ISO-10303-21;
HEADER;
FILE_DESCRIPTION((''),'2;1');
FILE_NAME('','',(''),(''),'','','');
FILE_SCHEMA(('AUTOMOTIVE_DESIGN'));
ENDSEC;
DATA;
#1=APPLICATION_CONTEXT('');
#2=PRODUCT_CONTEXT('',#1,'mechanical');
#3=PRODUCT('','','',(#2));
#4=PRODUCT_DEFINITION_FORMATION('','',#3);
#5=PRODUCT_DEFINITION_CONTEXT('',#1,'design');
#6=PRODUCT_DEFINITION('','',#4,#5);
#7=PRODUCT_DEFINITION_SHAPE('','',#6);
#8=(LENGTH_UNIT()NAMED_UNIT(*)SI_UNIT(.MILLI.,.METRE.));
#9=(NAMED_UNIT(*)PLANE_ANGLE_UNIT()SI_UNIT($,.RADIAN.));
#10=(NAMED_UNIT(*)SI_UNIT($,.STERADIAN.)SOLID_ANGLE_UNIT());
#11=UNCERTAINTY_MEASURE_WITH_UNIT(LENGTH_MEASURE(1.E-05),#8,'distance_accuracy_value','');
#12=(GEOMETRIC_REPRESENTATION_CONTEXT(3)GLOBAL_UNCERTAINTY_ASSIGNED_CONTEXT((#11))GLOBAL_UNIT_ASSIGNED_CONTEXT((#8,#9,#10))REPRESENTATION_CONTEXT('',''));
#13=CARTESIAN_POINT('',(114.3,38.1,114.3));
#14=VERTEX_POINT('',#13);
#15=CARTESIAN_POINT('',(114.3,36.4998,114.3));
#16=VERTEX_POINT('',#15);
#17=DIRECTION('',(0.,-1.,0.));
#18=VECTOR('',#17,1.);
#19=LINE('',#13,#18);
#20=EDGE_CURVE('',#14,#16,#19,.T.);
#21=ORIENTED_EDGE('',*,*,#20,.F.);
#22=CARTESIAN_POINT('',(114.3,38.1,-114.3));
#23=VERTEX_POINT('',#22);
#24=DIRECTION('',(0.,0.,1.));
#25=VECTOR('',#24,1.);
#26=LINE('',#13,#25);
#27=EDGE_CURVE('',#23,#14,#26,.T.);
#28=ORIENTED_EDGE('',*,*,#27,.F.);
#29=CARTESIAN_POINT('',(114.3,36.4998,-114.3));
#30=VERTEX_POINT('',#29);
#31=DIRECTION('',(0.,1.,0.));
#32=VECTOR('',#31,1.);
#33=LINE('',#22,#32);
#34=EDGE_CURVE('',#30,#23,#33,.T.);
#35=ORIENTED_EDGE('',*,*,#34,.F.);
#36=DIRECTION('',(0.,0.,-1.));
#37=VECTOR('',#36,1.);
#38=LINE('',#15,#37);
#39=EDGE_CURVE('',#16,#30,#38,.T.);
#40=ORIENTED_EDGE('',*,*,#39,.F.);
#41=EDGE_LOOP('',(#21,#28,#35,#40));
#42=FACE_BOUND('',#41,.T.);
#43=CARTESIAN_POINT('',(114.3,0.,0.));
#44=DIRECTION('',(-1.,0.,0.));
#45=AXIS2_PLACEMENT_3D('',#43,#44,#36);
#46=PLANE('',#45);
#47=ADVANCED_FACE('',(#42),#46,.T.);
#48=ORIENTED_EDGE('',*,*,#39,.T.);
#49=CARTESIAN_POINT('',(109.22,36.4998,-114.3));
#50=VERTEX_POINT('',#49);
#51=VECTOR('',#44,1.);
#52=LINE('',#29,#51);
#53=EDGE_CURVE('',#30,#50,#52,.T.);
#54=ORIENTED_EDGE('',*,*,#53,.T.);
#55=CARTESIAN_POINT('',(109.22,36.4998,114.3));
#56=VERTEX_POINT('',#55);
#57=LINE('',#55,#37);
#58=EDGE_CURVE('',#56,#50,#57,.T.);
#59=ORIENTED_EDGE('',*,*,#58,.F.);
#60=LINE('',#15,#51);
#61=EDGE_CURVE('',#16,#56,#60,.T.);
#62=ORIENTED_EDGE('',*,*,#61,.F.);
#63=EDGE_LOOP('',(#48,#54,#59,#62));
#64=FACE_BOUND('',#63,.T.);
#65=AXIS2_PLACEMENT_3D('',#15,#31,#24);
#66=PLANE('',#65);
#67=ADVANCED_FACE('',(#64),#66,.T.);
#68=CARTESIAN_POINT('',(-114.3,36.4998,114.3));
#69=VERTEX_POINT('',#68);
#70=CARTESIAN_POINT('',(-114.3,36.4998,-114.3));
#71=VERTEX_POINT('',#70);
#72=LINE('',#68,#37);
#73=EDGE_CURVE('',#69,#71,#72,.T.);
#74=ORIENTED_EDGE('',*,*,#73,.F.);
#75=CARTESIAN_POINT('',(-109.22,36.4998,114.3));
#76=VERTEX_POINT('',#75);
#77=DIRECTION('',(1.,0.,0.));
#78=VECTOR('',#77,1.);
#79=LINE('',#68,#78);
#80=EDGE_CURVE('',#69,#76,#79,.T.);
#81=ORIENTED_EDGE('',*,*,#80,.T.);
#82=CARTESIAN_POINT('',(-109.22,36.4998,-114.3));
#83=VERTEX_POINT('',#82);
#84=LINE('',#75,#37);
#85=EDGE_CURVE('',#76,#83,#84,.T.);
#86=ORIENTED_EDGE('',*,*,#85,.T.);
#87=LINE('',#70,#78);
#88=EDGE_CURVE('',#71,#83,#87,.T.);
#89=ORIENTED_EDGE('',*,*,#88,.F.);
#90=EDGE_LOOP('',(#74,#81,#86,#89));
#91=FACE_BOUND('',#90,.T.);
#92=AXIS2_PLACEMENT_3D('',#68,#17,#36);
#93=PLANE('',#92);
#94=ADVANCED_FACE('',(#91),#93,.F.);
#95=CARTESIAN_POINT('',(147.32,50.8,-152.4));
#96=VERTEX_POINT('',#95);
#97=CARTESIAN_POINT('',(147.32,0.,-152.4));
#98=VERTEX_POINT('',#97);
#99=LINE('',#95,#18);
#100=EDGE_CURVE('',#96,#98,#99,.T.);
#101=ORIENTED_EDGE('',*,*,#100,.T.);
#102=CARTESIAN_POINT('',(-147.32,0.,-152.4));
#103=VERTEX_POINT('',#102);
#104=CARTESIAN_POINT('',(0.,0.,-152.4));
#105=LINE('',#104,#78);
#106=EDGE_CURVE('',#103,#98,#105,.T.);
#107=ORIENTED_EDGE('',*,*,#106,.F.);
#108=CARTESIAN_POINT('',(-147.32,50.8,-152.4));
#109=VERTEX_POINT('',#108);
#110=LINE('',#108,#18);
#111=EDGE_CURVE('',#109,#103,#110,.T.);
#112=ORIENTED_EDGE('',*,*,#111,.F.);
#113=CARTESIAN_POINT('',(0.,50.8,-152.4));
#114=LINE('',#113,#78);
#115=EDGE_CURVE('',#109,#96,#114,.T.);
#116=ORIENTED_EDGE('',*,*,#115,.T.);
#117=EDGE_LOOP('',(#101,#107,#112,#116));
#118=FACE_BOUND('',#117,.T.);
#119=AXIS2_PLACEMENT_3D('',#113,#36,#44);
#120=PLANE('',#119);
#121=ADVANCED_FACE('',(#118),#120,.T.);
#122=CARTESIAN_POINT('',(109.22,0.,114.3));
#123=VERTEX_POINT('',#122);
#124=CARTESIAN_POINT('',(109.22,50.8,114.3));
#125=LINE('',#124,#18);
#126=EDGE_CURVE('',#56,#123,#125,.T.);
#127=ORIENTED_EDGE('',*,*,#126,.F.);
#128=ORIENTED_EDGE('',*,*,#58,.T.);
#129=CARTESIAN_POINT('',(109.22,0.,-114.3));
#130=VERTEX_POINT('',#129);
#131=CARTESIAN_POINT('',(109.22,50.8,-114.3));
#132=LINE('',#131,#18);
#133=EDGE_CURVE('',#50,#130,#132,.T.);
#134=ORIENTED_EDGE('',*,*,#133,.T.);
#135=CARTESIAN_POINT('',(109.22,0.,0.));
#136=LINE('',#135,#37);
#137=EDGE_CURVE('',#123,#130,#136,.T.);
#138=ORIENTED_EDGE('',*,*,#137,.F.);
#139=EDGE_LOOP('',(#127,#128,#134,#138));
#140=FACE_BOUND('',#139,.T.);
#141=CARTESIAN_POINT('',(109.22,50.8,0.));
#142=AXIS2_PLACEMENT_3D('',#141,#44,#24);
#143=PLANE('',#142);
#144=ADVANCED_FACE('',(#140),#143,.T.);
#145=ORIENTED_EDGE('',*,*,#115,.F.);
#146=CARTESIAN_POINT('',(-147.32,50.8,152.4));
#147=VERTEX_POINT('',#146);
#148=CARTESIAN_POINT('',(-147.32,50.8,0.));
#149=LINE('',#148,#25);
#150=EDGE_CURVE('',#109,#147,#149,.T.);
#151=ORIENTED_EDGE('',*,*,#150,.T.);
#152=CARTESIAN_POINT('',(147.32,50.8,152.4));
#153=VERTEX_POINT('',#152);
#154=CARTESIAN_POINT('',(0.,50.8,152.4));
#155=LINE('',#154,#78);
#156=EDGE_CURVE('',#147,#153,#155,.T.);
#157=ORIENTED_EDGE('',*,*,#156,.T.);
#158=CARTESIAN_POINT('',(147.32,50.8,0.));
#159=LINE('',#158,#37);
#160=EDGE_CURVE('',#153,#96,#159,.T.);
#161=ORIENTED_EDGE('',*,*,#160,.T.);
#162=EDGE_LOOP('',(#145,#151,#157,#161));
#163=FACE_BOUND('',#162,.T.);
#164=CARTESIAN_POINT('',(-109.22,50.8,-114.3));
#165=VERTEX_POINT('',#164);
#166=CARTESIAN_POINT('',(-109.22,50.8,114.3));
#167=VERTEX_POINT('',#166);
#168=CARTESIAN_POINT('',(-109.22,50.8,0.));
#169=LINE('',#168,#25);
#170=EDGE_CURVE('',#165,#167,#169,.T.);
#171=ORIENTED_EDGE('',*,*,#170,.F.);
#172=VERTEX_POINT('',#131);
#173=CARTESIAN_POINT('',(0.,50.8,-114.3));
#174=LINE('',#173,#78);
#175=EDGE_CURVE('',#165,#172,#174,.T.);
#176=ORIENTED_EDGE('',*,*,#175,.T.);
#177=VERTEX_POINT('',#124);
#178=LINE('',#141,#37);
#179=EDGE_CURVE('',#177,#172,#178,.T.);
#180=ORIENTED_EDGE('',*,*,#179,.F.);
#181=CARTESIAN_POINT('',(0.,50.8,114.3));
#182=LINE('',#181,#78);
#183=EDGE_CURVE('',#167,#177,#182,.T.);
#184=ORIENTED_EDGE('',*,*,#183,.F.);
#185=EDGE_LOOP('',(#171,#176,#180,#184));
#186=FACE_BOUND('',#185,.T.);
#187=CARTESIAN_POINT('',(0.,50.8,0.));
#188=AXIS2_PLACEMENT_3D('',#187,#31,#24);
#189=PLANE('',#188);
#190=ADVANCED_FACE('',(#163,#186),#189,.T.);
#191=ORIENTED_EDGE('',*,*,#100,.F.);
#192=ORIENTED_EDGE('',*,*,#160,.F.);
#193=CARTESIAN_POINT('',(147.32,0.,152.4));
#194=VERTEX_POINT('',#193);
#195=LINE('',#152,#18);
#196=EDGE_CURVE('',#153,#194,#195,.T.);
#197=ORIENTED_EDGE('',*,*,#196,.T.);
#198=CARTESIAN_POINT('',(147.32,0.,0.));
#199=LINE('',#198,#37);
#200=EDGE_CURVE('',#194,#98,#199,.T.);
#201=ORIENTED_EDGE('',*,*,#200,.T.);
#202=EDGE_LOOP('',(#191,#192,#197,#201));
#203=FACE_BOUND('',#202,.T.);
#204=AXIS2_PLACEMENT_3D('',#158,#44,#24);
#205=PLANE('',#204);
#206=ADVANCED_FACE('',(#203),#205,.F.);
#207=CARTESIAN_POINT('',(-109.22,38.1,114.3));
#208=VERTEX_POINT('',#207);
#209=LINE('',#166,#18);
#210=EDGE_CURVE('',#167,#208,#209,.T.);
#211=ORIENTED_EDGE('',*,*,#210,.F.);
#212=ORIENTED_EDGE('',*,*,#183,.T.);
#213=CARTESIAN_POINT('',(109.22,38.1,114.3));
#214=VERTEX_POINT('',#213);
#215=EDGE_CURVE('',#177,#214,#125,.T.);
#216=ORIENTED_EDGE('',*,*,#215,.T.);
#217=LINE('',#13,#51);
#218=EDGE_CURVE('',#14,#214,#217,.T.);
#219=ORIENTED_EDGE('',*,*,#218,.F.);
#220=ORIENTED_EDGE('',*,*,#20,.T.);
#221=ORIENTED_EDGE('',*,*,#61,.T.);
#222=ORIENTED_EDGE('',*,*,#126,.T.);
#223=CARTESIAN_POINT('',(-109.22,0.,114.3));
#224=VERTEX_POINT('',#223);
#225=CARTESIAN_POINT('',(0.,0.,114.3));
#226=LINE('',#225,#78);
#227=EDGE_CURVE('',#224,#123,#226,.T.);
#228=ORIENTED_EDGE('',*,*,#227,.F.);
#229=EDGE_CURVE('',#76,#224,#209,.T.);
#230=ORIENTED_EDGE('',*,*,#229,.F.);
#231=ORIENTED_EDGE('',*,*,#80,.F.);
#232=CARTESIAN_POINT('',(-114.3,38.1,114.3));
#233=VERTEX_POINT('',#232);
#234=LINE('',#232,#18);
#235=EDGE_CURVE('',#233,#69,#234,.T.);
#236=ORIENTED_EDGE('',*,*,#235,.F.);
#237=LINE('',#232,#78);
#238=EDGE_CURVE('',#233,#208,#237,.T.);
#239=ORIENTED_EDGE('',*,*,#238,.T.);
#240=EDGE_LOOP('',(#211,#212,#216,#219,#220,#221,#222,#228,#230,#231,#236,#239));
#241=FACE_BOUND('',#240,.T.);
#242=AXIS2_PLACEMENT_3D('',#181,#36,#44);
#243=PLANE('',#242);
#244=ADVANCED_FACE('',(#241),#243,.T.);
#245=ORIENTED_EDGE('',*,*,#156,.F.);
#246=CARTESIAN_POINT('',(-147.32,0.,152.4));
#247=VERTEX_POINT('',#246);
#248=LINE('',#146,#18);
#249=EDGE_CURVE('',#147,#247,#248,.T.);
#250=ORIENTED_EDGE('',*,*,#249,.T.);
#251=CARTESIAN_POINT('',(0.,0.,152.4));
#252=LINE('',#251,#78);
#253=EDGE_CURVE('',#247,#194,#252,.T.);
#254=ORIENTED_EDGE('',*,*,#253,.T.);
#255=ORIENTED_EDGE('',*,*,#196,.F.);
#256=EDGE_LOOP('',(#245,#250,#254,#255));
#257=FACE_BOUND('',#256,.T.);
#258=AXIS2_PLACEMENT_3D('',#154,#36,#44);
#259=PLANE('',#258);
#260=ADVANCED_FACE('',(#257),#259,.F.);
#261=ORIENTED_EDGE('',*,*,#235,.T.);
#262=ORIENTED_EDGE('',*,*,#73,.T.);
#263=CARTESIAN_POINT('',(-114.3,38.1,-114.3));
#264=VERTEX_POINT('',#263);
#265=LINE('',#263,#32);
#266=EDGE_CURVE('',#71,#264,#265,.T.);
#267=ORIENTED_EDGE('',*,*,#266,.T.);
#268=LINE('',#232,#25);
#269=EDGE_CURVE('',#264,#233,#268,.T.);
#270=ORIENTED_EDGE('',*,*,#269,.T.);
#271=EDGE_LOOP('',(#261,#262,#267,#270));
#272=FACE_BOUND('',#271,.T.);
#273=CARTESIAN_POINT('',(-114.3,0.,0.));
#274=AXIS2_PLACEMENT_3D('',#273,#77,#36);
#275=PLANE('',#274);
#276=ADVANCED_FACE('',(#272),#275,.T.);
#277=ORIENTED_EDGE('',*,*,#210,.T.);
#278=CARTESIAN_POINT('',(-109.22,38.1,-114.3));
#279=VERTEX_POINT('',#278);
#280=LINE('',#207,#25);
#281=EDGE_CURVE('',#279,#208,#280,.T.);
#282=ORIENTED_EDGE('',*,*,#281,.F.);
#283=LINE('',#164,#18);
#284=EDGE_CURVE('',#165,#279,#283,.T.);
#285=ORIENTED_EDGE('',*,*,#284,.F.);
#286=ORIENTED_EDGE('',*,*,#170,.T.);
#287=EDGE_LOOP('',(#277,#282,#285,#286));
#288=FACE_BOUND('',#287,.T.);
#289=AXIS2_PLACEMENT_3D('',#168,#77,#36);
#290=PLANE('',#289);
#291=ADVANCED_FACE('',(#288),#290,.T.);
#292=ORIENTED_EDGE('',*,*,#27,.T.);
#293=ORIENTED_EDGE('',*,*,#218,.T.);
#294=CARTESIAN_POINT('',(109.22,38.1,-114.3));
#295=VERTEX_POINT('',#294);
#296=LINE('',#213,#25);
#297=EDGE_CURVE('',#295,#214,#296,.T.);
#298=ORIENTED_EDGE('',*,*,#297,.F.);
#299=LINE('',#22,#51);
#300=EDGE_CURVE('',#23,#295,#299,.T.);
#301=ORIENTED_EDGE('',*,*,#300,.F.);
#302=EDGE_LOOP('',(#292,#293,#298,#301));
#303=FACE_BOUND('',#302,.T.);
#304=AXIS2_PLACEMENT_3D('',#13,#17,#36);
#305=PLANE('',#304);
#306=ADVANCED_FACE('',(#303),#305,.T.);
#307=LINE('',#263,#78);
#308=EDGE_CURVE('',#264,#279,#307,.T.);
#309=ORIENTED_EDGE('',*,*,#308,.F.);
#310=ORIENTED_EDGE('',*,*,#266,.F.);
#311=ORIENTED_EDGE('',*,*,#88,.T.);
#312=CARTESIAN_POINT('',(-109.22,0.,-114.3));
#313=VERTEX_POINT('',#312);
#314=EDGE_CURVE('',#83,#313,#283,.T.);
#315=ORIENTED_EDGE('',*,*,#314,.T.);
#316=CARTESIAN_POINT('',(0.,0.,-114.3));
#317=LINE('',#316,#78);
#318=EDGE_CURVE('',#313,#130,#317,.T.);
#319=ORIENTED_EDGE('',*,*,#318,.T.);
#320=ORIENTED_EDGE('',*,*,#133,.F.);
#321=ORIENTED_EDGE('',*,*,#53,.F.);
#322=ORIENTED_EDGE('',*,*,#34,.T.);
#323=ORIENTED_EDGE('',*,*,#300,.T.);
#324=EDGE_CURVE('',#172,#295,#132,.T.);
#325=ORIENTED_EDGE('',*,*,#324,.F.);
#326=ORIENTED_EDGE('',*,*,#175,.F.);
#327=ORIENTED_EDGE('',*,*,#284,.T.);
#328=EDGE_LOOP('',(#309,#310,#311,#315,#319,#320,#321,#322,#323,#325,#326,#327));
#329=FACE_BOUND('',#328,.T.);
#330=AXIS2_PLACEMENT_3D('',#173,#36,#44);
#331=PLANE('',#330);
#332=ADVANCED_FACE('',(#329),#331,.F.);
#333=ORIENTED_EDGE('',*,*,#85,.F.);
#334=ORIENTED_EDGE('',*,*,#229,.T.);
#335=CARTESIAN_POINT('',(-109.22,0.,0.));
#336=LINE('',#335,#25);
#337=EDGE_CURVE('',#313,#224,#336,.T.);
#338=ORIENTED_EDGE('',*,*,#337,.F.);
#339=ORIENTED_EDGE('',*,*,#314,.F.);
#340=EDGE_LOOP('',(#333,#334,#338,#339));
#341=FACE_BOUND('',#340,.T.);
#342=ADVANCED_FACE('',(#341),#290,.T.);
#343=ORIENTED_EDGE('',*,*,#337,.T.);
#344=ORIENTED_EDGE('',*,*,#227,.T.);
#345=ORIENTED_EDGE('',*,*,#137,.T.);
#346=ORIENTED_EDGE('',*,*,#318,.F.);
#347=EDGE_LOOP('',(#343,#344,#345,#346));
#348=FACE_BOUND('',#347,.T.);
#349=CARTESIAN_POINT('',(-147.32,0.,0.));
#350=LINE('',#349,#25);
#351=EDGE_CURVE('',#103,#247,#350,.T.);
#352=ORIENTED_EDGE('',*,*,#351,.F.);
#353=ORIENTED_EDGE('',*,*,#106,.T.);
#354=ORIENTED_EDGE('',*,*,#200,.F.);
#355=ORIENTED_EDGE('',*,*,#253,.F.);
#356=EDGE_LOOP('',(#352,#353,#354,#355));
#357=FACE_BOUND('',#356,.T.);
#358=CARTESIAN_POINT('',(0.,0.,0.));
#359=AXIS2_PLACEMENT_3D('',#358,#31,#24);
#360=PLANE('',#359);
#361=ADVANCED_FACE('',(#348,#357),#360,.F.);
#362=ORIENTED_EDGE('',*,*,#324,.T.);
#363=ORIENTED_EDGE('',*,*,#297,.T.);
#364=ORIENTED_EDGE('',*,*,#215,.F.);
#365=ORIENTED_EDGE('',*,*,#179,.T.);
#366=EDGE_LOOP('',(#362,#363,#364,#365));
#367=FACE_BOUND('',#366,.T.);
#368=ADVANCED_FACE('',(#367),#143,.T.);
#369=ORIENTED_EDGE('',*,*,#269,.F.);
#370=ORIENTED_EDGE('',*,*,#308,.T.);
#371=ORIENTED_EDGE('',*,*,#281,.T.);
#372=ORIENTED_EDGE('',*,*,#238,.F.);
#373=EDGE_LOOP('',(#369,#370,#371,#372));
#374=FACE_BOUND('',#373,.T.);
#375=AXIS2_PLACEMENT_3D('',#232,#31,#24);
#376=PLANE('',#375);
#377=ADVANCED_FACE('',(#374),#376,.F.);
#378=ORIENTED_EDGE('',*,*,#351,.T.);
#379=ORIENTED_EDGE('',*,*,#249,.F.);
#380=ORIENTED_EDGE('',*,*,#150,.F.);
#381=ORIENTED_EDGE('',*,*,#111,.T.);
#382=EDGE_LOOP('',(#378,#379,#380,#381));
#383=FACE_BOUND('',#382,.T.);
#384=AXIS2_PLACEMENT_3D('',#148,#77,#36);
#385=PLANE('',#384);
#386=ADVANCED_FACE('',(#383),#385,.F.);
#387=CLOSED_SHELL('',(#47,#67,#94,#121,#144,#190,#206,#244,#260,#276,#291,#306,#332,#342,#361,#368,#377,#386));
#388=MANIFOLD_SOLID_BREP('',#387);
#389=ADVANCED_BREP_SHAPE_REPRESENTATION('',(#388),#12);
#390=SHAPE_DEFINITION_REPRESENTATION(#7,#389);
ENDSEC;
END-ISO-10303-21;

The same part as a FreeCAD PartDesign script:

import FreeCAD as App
import Part
import Sketcher
from FreeCAD import Vector
Q = App.Units.Quantity


def add_polygon(sketch, points):
    """Adds a closed chain of lines whose ends are joined by coincident constraints."""
    first, n = sketch.GeometryCount, len(points)
    for a, b in zip(points, points[1:] + points[:1]):
        sketch.addGeometry(Part.LineSegment(App.Vector(*a, 0), App.Vector(*b, 0)), False)
    for i in range(n):
        sketch.addConstraint(Sketcher.Constraint("Coincident", first + i, 2, first + (i + 1) % n, 1))

doc = App.newDocument("Part")
body = doc.addObject("PartDesign::Body", "Body")

# Sketch on XZ plane
sketch1 = body.newObject("Sketcher::SketchObject", "Sketch")
sketch1.AttachmentSupport = (doc.getObject("XZ_Plane"), [""])
sketch1.MapMode = "FlatFace"
add_polygon(sketch1, [(-147, -152), (-147, 152), (147, 152), (147, -152)])  # lines 0-3
add_polygon(sketch1, [(109, -114), (109, 114), (-109, 114), (-109, -114)])  # lines 4-7
sketch1.addConstraint([
    Sketcher.Constraint("Vertical", 0),
    Sketcher.Constraint("Horizontal", 1),
    Sketcher.Constraint("Vertical", 2),
    Sketcher.Constraint("Horizontal", 3),
    Sketcher.Constraint("Vertical", 4),
    Sketcher.Constraint("Horizontal", 5),
    Sketcher.Constraint("Vertical", 6),
    Sketcher.Constraint("Horizontal", 7),
    Sketcher.Constraint("Symmetric", 0, 2, 2, 2, -1, 1),
    Sketcher.Constraint("Symmetric", 4, 2, 6, 2, -1, 1),
    Sketcher.Constraint("DistanceY", 0, 1, 0, 2, Q("12 in")),
    Sketcher.Constraint("DistanceY", 4, 1, 4, 2, Q("9 in")),
    Sketcher.Constraint("DistanceX", 1, 1, 1, 2, Q("11.6 in")),
    Sketcher.Constraint("DistanceX", 5, 2, 5, 1, Q("8.6 in")),
])
pad1 = body.newObject("PartDesign::Pad", "Pad")
pad1.Profile = sketch1
pad1.Length = Q("2 in")
pad1.Reversed = True

# Sketch on YZ plane
sketch2 = body.newObject("Sketcher::SketchObject", "Sketch001")
sketch2.AttachmentSupport = (doc.getObject("YZ_Plane"), [""])
sketch2.MapMode = "FlatFace"
sketch2.AttachmentOffset = App.Placement(Vector(0, 0, -4.3 * 25.4), App.Rotation())
add_polygon(sketch2, [(38.1, 114.3), (36.5, 114.3), (36.5, -114.3), (38.1, -114.3)])  # lines 0-3
sketch2.addConstraint([
    Sketcher.Constraint("Horizontal", 0),
    Sketcher.Constraint("Vertical", 1),
    Sketcher.Constraint("Horizontal", 2),
    Sketcher.Constraint("Vertical", 3),
    Sketcher.Constraint("DistanceY", 1, 2, 1, 1, Q("9 in")),
    Sketcher.Constraint("DistanceY", -1, 1, 0, 2, Q("4.5 in")),
    Sketcher.Constraint("DistanceX", -1, 1, 2, 2, Q("1.5 in")),
    Sketcher.Constraint("DistanceX", 0, 2, 0, 1, Q("0.063 in")),
])
pocket1 = body.newObject("PartDesign::Pocket", "Pocket")
pocket1.Profile = sketch2
pocket1.Length = Q("0.2 in")
doc.recompute()

mirrored = body.newObject("PartDesign::Mirrored", "Mirrored")
mirrored.Originals = [pocket1]
mirrored.MirrorPlane = (doc.getObject("YZ_Plane"), [""])
body.Tip = mirrored

doc.recompute()
